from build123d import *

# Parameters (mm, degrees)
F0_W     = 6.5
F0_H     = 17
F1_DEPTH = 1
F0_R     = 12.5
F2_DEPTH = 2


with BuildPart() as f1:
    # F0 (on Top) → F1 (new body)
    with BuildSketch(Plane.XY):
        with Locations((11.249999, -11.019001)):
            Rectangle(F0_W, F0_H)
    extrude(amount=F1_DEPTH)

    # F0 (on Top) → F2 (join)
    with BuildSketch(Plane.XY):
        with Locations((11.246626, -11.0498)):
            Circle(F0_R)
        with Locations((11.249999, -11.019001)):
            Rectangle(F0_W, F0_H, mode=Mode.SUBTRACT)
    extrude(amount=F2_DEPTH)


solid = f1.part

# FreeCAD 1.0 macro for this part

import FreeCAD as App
import Part
import Sketcher

V = App.Vector
Q = App.Units.Quantity


def add_polygon(sketch, points):
    """Adds a closed chain of lines whose ends are joined by coincident constraints."""
    first, n = sketch.GeometryCount, len(points)
    for a, b in zip(points, points[1:] + points[:1]):
        sketch.addGeometry(Part.LineSegment(App.Vector(*a, 0), App.Vector(*b, 0)), False)
    for i in range(n):
        sketch.addConstraint(Sketcher.Constraint("Coincident", first + i, 2, first + (i + 1) % n, 1))

doc = App.newDocument("Part")
body = doc.addObject("PartDesign::Body", "Body")

# Sketch on XY plane
sketch1 = body.newObject("Sketcher::SketchObject", "Sketch")
sketch1.AttachmentSupport = (doc.getObject("XY_Plane"), [""])
sketch1.MapMode = "FlatFace"
add_polygon(sketch1, [(7.999999, -2.519001), (7.999999, -19.519001), (14.499999, -19.519001), (14.499999, -2.519001)])  # lines 0-3
sketch1.addConstraint([
    Sketcher.Constraint("Vertical", 0),
    Sketcher.Constraint("Horizontal", 1),
    Sketcher.Constraint("Vertical", 2),
    Sketcher.Constraint("Horizontal", 3),
    Sketcher.Constraint("DistanceY", 0, 2, 0, 1, Q("17 mm")),
    Sketcher.Constraint("DistanceX", 1, 1, 1, 2, Q("6.5 mm")),
    Sketcher.Constraint("DistanceX", -1, 1, 0, 2, Q("7.999999 mm")),
    Sketcher.Constraint("DistanceY", 0, 2, -1, 1, Q("19.519001 mm")),
])
pad1 = body.newObject("PartDesign::Pad", "Pad")
pad1.Profile = sketch1
pad1.Length = 1

# Sketch on XY plane
sketch2 = body.newObject("Sketcher::SketchObject", "Sketch001")
sketch2.AttachmentSupport = (doc.getObject("XY_Plane"), [""])
sketch2.MapMode = "FlatFace"
sketch2.addGeometry(Part.Circle(V(11.246626, -11.0498, 0), V(0, 0, 1), 12.5), False)  # 0
add_polygon(sketch2, [(14.499999, -19.519001), (7.999999, -19.519001), (7.999999, -2.519001), (14.499999, -2.519001)])  # lines 1-4
sketch2.addConstraint([
    Sketcher.Constraint("Horizontal", 1),
    Sketcher.Constraint("Vertical", 2),
    Sketcher.Constraint("Horizontal", 3),
    Sketcher.Constraint("Vertical", 4),
    Sketcher.Constraint("Diameter", 0, Q("25 mm")),
    Sketcher.Constraint("DistanceY", 2, 1, 2, 2, Q("17 mm")),
    Sketcher.Constraint("DistanceX", 1, 2, 1, 1, Q("6.5 mm")),
    Sketcher.Constraint("DistanceX", -1, 1, 1, 2, Q("7.999999 mm")),
    Sketcher.Constraint("DistanceY", 1, 2, -1, 1, Q("19.519001 mm")),
    Sketcher.Constraint("DistanceY", 0, 3, -1, 1, Q("11.0498 mm")),
    Sketcher.Constraint("DistanceX", -1, 1, 0, 3, Q("11.246626 mm")),
])
pad2 = body.newObject("PartDesign::Pad", "Pad001")
pad2.Profile = sketch2
pad2.Length = 2

doc.recompute()
